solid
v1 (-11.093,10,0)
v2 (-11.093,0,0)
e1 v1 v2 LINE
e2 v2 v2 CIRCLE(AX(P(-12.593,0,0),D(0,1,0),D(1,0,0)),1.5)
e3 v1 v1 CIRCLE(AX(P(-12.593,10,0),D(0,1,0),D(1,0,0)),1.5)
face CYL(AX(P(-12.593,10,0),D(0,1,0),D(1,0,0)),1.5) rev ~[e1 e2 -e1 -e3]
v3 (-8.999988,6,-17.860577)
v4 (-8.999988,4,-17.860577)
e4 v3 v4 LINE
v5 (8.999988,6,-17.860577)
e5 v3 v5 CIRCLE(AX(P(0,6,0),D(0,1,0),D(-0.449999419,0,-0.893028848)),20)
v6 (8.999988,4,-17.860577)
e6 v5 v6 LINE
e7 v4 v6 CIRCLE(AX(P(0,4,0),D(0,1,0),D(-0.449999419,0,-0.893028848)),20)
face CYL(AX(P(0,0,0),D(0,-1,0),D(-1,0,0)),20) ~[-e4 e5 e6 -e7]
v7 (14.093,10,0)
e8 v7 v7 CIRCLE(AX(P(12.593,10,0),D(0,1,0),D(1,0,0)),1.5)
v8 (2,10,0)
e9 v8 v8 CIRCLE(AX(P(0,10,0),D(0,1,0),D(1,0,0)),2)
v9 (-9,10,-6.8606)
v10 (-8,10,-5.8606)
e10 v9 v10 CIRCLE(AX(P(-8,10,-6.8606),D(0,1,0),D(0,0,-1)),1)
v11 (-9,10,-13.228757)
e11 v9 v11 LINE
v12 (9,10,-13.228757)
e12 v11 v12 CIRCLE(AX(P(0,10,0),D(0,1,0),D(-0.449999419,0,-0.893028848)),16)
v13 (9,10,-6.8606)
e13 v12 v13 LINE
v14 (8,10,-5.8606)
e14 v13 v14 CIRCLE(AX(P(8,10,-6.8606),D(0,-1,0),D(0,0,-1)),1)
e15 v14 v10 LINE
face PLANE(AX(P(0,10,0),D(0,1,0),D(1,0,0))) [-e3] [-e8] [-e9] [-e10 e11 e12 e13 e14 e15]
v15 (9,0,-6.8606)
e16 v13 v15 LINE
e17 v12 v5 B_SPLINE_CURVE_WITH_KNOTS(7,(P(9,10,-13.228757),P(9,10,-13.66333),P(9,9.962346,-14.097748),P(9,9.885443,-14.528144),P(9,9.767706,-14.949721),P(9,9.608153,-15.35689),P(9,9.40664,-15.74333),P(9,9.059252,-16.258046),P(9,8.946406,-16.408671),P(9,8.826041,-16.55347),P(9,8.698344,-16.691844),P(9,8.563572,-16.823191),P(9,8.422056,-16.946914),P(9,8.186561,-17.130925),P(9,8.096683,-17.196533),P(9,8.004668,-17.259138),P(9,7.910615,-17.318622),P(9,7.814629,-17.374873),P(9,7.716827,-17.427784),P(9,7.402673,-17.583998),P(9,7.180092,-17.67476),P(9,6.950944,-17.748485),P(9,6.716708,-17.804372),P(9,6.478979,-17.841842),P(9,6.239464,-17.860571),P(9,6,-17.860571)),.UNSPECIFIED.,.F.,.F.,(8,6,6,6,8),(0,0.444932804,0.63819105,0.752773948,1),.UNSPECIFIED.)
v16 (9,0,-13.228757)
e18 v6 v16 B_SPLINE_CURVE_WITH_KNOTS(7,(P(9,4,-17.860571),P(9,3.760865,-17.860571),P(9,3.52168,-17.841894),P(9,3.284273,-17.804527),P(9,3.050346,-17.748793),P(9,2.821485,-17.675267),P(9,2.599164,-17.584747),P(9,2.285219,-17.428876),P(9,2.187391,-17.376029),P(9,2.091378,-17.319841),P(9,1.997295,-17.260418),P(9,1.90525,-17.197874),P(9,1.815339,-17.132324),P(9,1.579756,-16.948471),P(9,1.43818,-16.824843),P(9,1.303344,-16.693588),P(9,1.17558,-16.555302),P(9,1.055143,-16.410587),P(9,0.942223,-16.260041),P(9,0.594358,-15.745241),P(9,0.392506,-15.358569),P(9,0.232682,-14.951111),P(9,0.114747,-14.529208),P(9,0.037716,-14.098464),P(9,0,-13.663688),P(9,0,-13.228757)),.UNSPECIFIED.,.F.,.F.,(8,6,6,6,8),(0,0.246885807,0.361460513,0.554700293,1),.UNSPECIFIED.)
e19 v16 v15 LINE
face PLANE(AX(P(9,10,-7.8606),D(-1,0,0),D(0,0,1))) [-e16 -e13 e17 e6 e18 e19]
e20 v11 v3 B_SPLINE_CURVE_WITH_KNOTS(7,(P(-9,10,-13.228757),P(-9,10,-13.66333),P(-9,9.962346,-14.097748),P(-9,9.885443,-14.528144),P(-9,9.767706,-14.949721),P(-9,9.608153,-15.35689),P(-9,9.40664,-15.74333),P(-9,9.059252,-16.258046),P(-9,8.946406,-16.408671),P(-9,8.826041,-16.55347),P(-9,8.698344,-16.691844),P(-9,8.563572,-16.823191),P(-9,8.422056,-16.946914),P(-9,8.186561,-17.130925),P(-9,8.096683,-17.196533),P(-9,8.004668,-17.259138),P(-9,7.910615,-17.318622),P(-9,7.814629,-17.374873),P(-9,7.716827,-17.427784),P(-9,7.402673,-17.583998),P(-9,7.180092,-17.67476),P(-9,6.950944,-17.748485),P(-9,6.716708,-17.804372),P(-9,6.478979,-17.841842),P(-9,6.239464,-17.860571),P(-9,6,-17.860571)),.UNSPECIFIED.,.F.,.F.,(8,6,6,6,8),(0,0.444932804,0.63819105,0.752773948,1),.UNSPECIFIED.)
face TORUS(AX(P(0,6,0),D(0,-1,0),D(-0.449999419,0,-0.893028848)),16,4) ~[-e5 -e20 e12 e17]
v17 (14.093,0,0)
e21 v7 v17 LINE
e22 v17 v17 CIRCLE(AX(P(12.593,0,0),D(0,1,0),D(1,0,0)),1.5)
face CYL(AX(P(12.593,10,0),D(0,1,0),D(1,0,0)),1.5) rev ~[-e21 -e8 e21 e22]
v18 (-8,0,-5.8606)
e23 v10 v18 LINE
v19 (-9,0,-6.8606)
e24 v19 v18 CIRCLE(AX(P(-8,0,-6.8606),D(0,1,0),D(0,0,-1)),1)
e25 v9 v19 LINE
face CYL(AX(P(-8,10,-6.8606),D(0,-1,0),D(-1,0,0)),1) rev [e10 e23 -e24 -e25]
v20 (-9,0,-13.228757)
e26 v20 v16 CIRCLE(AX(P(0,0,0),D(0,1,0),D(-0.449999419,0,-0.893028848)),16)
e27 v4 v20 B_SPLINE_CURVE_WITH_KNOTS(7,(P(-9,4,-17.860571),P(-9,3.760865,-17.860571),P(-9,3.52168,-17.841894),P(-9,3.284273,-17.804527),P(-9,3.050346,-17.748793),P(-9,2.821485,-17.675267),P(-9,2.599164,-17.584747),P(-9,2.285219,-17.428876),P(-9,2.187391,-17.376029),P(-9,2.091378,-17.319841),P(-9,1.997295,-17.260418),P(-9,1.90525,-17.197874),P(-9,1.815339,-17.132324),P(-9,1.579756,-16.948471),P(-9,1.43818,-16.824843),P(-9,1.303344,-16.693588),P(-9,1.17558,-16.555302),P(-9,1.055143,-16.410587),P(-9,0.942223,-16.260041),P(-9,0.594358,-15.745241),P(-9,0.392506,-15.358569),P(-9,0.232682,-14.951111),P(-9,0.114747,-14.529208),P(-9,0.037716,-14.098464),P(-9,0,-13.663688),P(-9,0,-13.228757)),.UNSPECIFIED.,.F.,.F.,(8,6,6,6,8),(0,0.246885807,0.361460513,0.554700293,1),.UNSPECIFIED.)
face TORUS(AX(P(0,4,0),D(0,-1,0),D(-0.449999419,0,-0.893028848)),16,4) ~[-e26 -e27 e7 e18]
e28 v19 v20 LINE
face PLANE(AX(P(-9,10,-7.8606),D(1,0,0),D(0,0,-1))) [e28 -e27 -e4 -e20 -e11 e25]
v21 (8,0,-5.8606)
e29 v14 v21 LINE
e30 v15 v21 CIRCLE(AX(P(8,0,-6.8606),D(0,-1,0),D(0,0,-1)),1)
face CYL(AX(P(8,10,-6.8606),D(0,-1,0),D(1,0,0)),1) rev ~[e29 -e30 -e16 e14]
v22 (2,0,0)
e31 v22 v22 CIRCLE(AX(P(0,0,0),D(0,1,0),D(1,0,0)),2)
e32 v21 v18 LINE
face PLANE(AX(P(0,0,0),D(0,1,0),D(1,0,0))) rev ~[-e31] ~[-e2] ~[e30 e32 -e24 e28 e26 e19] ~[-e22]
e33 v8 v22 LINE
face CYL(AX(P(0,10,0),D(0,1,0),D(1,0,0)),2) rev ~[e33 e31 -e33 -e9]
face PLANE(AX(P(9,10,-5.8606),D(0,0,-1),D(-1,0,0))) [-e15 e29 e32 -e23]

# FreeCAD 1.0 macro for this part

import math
import FreeCAD as App
import Part
import Sketcher
Q = App.Units.Quantity


def edges_at(feature, points):
    """Names of the edges that pass closest to the given points."""
    edges = feature.Shape.Edges
    near = lambda p: min(range(len(edges)), key=lambda i: edges[i].distToShape(Part.Vertex(*p))[0])
    return sorted({f"Edge{near(p) + 1}" for p in points})


def add_polygon(sketch, points):
    """Adds a closed chain of lines whose ends are joined by coincident constraints."""
    first, n = sketch.GeometryCount, len(points)
    for a, b in zip(points, points[1:] + points[:1]):
        sketch.addGeometry(Part.LineSegment(App.Vector(*a, 0), App.Vector(*b, 0)), False)
    for i in range(n):
        sketch.addConstraint(Sketcher.Constraint("Coincident", first + i, 2, first + (i + 1) % n, 1))

doc = App.newDocument("Part")
params = doc.addObject("Spreadsheet::Sheet", "Params")
for row, (alias, value) in enumerate([
    ("sketch1_diameter", "40 mm"),
    ("pad1_length", "10 mm"),
    ("sketch2_diameter", "12 mm"),
    ("pocket1_length", "10 mm"),
    ("sketch3_diameter", "3 mm"),
    ("pocket2_length", "10 mm"),
    ("sketch4_diameter", "10 mm"),
    ("sketch4_diameter2", "12 mm"),
    ("pad2_length", "10 mm"),
    ("sketch5_diameter", "6 mm"),
    ("sketch5_diameter2", "10 mm"),
    ("pad3_length", "2 mm"),
    ("sketch6_width", "18 mm"),
    ("sketch6_height", "10 mm"),
    ("sketch6_radius", "20 mm"),
    ("pocket3_length", "10 mm"),
    ("sketch7_width", "18 mm"),
    ("sketch7_height", "2 mm"),
    ("pocket4_length", "10 mm"),
    ("sketch8_diameter", "10 mm"),
    ("pad4_length", "8 mm"),
    ("sketch9_diameter", "6 mm"),
    ("pocket5_length", "8 mm"),
    ("sketch10_diameter", "4 mm"),
    ("sketch10_diameter2", "6 mm"),
    ("pad5_length", "10 mm"),
    ("fillet_radius", "1 mm"),
    ("fillet2_radius", "4 mm"),
], start=1):
    params.set(f"A{row}", alias)
    params.set(f"B{row}", "=" + value)
    params.setAlias(f"B{row}", alias)

body = doc.addObject("PartDesign::Body", "Body")

# Sketch on XZ plane
sketch1 = body.newObject("Sketcher::SketchObject", "Sketch")
sketch1.AttachmentSupport = (doc.getObject("XZ_Plane"), [""])
sketch1.MapMode = "FlatFace"
sketch1.addGeometry(Part.Circle(App.Vector(0, 0, 0), App.Vector(0, 0, 1), 20), False)
sketch1.addConstraint(Sketcher.Constraint("Coincident", 0, 3, -1, 1))
sketch1.addConstraint(Sketcher.Constraint("Diameter", 0, Q("40 mm")))
sketch1.setExpression("Constraints[1]", "Params.sketch1_diameter")
pad1 = body.newObject("PartDesign::Pad", "Pad")
pad1.Profile = sketch1
pad1.setExpression("Length", "Params.pad1_length")
pad1.Reversed = True

# Sketch on XZ plane
sketch2 = body.newObject("Sketcher::SketchObject", "Sketch001")
sketch2.AttachmentSupport = (doc.getObject("XZ_Plane"), [""])
sketch2.MapMode = "FlatFace"
sketch2.AttachmentOffset = App.Placement(App.Vector(0, 0, -10), App.Rotation())
sketch2.addGeometry(Part.Circle(App.Vector(0, 0, 0), App.Vector(0, 0, 1), 6), False)
sketch2.addConstraint(Sketcher.Constraint("Coincident", 0, 3, -1, 1))
sketch2.addConstraint(Sketcher.Constraint("Diameter", 0, Q("12 mm")))
sketch2.setExpression("Constraints[1]", "Params.sketch2_diameter")
pocket1 = body.newObject("PartDesign::Pocket", "Pocket")
pocket1.Profile = sketch2
pocket1.setExpression("Length", "Params.pocket1_length")
pocket1.Reversed = True

# Sketch on XZ plane
sketch3 = body.newObject("Sketcher::SketchObject", "Sketch002")
sketch3.AttachmentSupport = (doc.getObject("XZ_Plane"), [""])
sketch3.MapMode = "FlatFace"
sketch3.AttachmentOffset = App.Placement(App.Vector(0, 0, -10), App.Rotation())
sketch3.addGeometry(Part.Circle(App.Vector(-12.593, 0, 0), App.Vector(0, 0, 1), 1.5), False)
sketch3.addGeometry(Part.Circle(App.Vector(12.593, 0, 0), App.Vector(0, 0, 1), 1.5), False)
sketch3.addConstraint(Sketcher.Constraint("Equal", 0, 1))
sketch3.addConstraint(Sketcher.Constraint("Symmetric", 0, 3, 1, 3, -1, 1))
sketch3.addConstraint(Sketcher.Constraint("PointOnObject", 0, 3, -1))
sketch3.addConstraint(Sketcher.Constraint("Diameter", 0, Q("3 mm")))
sketch3.addConstraint(Sketcher.Constraint("DistanceX", 0, 3, -1, 1, Q("12.593 mm")))
sketch3.setExpression("Constraints[3]", "Params.sketch3_diameter")
pocket2 = body.newObject("PartDesign::Pocket", "Pocket001")
pocket2.Profile = sketch3
pocket2.setExpression("Length", "Params.pocket2_length")
pocket2.Reversed = True

# Sketch on XZ plane
sketch4 = body.newObject("Sketcher::SketchObject", "Sketch003")
sketch4.AttachmentSupport = (doc.getObject("XZ_Plane"), [""])
sketch4.MapMode = "FlatFace"
sketch4.AttachmentOffset = App.Placement(App.Vector(0, 0, -10), App.Rotation())
sketch4.addGeometry(Part.Circle(App.Vector(0, 0, 0), App.Vector(0, 0, 1), 6), False)
sketch4.addGeometry(Part.Circle(App.Vector(0, 0, 0), App.Vector(0, 0, 1), 5), False)
sketch4.addConstraint(Sketcher.Constraint("Coincident", 0, 3, -1, 1))
sketch4.addConstraint(Sketcher.Constraint("Coincident", 1, 3, -1, 1))
sketch4.addConstraint(Sketcher.Constraint("Diameter", 1, Q("10 mm")))
sketch4.addConstraint(Sketcher.Constraint("Diameter", 0, Q("12 mm")))
sketch4.setExpression("Constraints[2]", "Params.sketch4_diameter")
sketch4.setExpression("Constraints[3]", "Params.sketch4_diameter2")
pad2 = body.newObject("PartDesign::Pad", "Pad001")
pad2.Profile = sketch4
pad2.setExpression("Length", "Params.pad2_length")

# Sketch on XZ plane
sketch5 = body.newObject("Sketcher::SketchObject", "Sketch004")
sketch5.AttachmentSupport = (doc.getObject("XZ_Plane"), [""])
sketch5.MapMode = "FlatFace"
sketch5.AttachmentOffset = App.Placement(App.Vector(0, 0, -10), App.Rotation())
sketch5.addGeometry(Part.Circle(App.Vector(0, 0, 0), App.Vector(0, 0, 1), 5), False)
sketch5.addGeometry(Part.Circle(App.Vector(0, 0, 0), App.Vector(0, 0, 1), 3), False)
sketch5.addConstraint(Sketcher.Constraint("Coincident", 0, 3, -1, 1))
sketch5.addConstraint(Sketcher.Constraint("Coincident", 1, 3, -1, 1))
sketch5.addConstraint(Sketcher.Constraint("Diameter", 1, Q("6 mm")))
sketch5.addConstraint(Sketcher.Constraint("Diameter", 0, Q("10 mm")))
sketch5.setExpression("Constraints[2]", "Params.sketch5_diameter")
sketch5.setExpression("Constraints[3]", "Params.sketch5_diameter2")
pad3 = body.newObject("PartDesign::Pad", "Pad002")
pad3.Profile = sketch5
pad3.setExpression("Length", "Params.pad3_length")

# Sketch on XZ plane
sketch6 = body.newObject("Sketcher::SketchObject", "Sketch005")
sketch6.AttachmentSupport = (doc.getObject("XZ_Plane"), [""])
sketch6.MapMode = "FlatFace"
sketch6.AttachmentOffset = App.Placement(App.Vector(0, 0, -10), App.Rotation())
sketch6.addGeometry(Part.LineSegment(App.Vector(9, -7.8606, 0), App.Vector(9, -17.8606, 0)), False)
sketch6.addGeometry(Part.ArcOfCircle(Part.Circle(App.Vector(0, 0, 0), App.Vector(0, 0, 1), 20), math.radians(-116.743647), math.radians(-63.256353)), False)
sketch6.addGeometry(Part.LineSegment(App.Vector(-9, -17.8606, 0), App.Vector(-9, -7.8606, 0)), False)
sketch6.addGeometry(Part.LineSegment(App.Vector(-9, -7.8606, 0), App.Vector(9, -7.8606, 0)), False)
sketch6.addConstraint(Sketcher.Constraint("Coincident", 0, 2, 1, 2))
sketch6.addConstraint(Sketcher.Constraint("Coincident", 1, 1, 2, 1))
sketch6.addConstraint(Sketcher.Constraint("Coincident", 2, 2, 3, 1))
sketch6.addConstraint(Sketcher.Constraint("Coincident", 3, 2, 0, 1))
sketch6.addConstraint(Sketcher.Constraint("Vertical", 0))
sketch6.addConstraint(Sketcher.Constraint("Vertical", 2))
sketch6.addConstraint(Sketcher.Constraint("Horizontal", 3))
sketch6.addConstraint(Sketcher.Constraint("Coincident", 1, 3, -1, 1))
sketch6.addConstraint(Sketcher.Constraint("Horizontal", 0, 2, 1, 1))
sketch6.addConstraint(Sketcher.Constraint("DistanceX", 3, 1, 3, 2, Q("18 mm")))
sketch6.addConstraint(Sketcher.Constraint("DistanceY", 0, 2, 0, 1, Q("10 mm")))
sketch6.addConstraint(Sketcher.Constraint("Radius", 1, Q("20 mm")))
sketch6.setExpression("Constraints[9]", "Params.sketch6_width")
sketch6.setExpression("Constraints[10]", "Params.sketch6_height")
sketch6.setExpression("Constraints[11]", "Params.sketch6_radius")
pocket3 = body.newObject("PartDesign::Pocket", "Pocket002")
pocket3.Profile = sketch6
pocket3.setExpression("Length", "Params.pocket3_length")
pocket3.Reversed = True

# Sketch on XZ plane
sketch7 = body.newObject("Sketcher::SketchObject", "Sketch006")
sketch7.AttachmentSupport = (doc.getObject("XZ_Plane"), [""])
sketch7.MapMode = "FlatFace"
sketch7.AttachmentOffset = App.Placement(App.Vector(0, 0, -10), App.Rotation())
add_polygon(sketch7, [(9, -7.8606), (-9, -7.8606), (-9, -5.8606), (9, -5.8606)])  # lines 0-3
sketch7.addConstraint(Sketcher.Constraint("Horizontal", 0))
sketch7.addConstraint(Sketcher.Constraint("Vertical", 1))
sketch7.addConstraint(Sketcher.Constraint("Horizontal", 2))
sketch7.addConstraint(Sketcher.Constraint("Vertical", 3))
sketch7.addConstraint(Sketcher.Constraint("DistanceX", 0, 2, 0, 1, Q("18 mm")))
sketch7.addConstraint(Sketcher.Constraint("DistanceY", 1, 1, 1, 2, Q("2 mm")))
sketch7.addConstraint(Sketcher.Constraint("DistanceX", 0, 2, -1, 1, Q("9 mm")))
sketch7.addConstraint(Sketcher.Constraint("DistanceY", 0, 2, -1, 1, Q("7.8606 mm")))
sketch7.setExpression("Constraints[8]", "Params.sketch7_width")
sketch7.setExpression("Constraints[9]", "Params.sketch7_height")
pocket4 = body.newObject("PartDesign::Pocket", "Pocket003")
pocket4.Profile = sketch7
pocket4.setExpression("Length", "Params.pocket4_length")
pocket4.Reversed = True

# Sketch on XZ plane
sketch8 = body.newObject("Sketcher::SketchObject", "Sketch007")
sketch8.AttachmentSupport = (doc.getObject("XZ_Plane"), [""])
sketch8.MapMode = "FlatFace"
sketch8.addGeometry(Part.Circle(App.Vector(0, 0, 0), App.Vector(0, 0, 1), 5), False)
sketch8.addConstraint(Sketcher.Constraint("Coincident", 0, 3, -1, 1))
sketch8.addConstraint(Sketcher.Constraint("Diameter", 0, Q("10 mm")))
sketch8.setExpression("Constraints[1]", "Params.sketch8_diameter")
pad4 = body.newObject("PartDesign::Pad", "Pad003")
pad4.Profile = sketch8
pad4.setExpression("Length", "Params.pad4_length")
pad4.Reversed = True

# Sketch on XZ plane
sketch9 = body.newObject("Sketcher::SketchObject", "Sketch008")
sketch9.AttachmentSupport = (doc.getObject("XZ_Plane"), [""])
sketch9.MapMode = "FlatFace"
sketch9.AttachmentOffset = App.Placement(App.Vector(0, 0, -8), App.Rotation())
sketch9.addGeometry(Part.Circle(App.Vector(0, 0, 0), App.Vector(0, 0, 1), 3), False)
sketch9.addConstraint(Sketcher.Constraint("Coincident", 0, 3, -1, 1))
sketch9.addConstraint(Sketcher.Constraint("Diameter", 0, Q("6 mm")))
sketch9.setExpression("Constraints[1]", "Params.sketch9_diameter")
pocket5 = body.newObject("PartDesign::Pocket", "Pocket004")
pocket5.Profile = sketch9
pocket5.setExpression("Length", "Params.pocket5_length")
pocket5.Reversed = True

# Sketch on XZ plane
sketch10 = body.newObject("Sketcher::SketchObject", "Sketch009")
sketch10.AttachmentSupport = (doc.getObject("XZ_Plane"), [""])
sketch10.MapMode = "FlatFace"
sketch10.AttachmentOffset = App.Placement(App.Vector(0, 0, -10), App.Rotation())
sketch10.addGeometry(Part.Circle(App.Vector(0, 0, 0), App.Vector(0, 0, 1), 3), False)
sketch10.addGeometry(Part.Circle(App.Vector(0, 0, 0), App.Vector(0, 0, 1), 2), False)
sketch10.addConstraint(Sketcher.Constraint("Coincident", 0, 3, -1, 1))
sketch10.addConstraint(Sketcher.Constraint("Coincident", 1, 3, -1, 1))
sketch10.addConstraint(Sketcher.Constraint("Diameter", 1, Q("4 mm")))
sketch10.addConstraint(Sketcher.Constraint("Diameter", 0, Q("6 mm")))
sketch10.setExpression("Constraints[2]", "Params.sketch10_diameter")
sketch10.setExpression("Constraints[3]", "Params.sketch10_diameter2")
pad5 = body.newObject("PartDesign::Pad", "Pad004")
pad5.Profile = sketch10
pad5.setExpression("Length", "Params.pad5_length")
doc.recompute()

fillet = body.newObject("PartDesign::Fillet", "Fillet")
fillet.Base = (pad5, edges_at(pad5, [(9, 5, -5.861), (-9, 5, -5.861)]))
fillet.setExpression("Radius", "Params.fillet_radius")
doc.recompute()

fillet2 = body.newObject("PartDesign::Fillet", "Fillet001")
fillet2.Base = (fillet, edges_at(fillet, [(0, 0, 20), (0, 10, 20)]))
fillet2.setExpression("Radius", "Params.fillet2_radius")

doc.recompute()
